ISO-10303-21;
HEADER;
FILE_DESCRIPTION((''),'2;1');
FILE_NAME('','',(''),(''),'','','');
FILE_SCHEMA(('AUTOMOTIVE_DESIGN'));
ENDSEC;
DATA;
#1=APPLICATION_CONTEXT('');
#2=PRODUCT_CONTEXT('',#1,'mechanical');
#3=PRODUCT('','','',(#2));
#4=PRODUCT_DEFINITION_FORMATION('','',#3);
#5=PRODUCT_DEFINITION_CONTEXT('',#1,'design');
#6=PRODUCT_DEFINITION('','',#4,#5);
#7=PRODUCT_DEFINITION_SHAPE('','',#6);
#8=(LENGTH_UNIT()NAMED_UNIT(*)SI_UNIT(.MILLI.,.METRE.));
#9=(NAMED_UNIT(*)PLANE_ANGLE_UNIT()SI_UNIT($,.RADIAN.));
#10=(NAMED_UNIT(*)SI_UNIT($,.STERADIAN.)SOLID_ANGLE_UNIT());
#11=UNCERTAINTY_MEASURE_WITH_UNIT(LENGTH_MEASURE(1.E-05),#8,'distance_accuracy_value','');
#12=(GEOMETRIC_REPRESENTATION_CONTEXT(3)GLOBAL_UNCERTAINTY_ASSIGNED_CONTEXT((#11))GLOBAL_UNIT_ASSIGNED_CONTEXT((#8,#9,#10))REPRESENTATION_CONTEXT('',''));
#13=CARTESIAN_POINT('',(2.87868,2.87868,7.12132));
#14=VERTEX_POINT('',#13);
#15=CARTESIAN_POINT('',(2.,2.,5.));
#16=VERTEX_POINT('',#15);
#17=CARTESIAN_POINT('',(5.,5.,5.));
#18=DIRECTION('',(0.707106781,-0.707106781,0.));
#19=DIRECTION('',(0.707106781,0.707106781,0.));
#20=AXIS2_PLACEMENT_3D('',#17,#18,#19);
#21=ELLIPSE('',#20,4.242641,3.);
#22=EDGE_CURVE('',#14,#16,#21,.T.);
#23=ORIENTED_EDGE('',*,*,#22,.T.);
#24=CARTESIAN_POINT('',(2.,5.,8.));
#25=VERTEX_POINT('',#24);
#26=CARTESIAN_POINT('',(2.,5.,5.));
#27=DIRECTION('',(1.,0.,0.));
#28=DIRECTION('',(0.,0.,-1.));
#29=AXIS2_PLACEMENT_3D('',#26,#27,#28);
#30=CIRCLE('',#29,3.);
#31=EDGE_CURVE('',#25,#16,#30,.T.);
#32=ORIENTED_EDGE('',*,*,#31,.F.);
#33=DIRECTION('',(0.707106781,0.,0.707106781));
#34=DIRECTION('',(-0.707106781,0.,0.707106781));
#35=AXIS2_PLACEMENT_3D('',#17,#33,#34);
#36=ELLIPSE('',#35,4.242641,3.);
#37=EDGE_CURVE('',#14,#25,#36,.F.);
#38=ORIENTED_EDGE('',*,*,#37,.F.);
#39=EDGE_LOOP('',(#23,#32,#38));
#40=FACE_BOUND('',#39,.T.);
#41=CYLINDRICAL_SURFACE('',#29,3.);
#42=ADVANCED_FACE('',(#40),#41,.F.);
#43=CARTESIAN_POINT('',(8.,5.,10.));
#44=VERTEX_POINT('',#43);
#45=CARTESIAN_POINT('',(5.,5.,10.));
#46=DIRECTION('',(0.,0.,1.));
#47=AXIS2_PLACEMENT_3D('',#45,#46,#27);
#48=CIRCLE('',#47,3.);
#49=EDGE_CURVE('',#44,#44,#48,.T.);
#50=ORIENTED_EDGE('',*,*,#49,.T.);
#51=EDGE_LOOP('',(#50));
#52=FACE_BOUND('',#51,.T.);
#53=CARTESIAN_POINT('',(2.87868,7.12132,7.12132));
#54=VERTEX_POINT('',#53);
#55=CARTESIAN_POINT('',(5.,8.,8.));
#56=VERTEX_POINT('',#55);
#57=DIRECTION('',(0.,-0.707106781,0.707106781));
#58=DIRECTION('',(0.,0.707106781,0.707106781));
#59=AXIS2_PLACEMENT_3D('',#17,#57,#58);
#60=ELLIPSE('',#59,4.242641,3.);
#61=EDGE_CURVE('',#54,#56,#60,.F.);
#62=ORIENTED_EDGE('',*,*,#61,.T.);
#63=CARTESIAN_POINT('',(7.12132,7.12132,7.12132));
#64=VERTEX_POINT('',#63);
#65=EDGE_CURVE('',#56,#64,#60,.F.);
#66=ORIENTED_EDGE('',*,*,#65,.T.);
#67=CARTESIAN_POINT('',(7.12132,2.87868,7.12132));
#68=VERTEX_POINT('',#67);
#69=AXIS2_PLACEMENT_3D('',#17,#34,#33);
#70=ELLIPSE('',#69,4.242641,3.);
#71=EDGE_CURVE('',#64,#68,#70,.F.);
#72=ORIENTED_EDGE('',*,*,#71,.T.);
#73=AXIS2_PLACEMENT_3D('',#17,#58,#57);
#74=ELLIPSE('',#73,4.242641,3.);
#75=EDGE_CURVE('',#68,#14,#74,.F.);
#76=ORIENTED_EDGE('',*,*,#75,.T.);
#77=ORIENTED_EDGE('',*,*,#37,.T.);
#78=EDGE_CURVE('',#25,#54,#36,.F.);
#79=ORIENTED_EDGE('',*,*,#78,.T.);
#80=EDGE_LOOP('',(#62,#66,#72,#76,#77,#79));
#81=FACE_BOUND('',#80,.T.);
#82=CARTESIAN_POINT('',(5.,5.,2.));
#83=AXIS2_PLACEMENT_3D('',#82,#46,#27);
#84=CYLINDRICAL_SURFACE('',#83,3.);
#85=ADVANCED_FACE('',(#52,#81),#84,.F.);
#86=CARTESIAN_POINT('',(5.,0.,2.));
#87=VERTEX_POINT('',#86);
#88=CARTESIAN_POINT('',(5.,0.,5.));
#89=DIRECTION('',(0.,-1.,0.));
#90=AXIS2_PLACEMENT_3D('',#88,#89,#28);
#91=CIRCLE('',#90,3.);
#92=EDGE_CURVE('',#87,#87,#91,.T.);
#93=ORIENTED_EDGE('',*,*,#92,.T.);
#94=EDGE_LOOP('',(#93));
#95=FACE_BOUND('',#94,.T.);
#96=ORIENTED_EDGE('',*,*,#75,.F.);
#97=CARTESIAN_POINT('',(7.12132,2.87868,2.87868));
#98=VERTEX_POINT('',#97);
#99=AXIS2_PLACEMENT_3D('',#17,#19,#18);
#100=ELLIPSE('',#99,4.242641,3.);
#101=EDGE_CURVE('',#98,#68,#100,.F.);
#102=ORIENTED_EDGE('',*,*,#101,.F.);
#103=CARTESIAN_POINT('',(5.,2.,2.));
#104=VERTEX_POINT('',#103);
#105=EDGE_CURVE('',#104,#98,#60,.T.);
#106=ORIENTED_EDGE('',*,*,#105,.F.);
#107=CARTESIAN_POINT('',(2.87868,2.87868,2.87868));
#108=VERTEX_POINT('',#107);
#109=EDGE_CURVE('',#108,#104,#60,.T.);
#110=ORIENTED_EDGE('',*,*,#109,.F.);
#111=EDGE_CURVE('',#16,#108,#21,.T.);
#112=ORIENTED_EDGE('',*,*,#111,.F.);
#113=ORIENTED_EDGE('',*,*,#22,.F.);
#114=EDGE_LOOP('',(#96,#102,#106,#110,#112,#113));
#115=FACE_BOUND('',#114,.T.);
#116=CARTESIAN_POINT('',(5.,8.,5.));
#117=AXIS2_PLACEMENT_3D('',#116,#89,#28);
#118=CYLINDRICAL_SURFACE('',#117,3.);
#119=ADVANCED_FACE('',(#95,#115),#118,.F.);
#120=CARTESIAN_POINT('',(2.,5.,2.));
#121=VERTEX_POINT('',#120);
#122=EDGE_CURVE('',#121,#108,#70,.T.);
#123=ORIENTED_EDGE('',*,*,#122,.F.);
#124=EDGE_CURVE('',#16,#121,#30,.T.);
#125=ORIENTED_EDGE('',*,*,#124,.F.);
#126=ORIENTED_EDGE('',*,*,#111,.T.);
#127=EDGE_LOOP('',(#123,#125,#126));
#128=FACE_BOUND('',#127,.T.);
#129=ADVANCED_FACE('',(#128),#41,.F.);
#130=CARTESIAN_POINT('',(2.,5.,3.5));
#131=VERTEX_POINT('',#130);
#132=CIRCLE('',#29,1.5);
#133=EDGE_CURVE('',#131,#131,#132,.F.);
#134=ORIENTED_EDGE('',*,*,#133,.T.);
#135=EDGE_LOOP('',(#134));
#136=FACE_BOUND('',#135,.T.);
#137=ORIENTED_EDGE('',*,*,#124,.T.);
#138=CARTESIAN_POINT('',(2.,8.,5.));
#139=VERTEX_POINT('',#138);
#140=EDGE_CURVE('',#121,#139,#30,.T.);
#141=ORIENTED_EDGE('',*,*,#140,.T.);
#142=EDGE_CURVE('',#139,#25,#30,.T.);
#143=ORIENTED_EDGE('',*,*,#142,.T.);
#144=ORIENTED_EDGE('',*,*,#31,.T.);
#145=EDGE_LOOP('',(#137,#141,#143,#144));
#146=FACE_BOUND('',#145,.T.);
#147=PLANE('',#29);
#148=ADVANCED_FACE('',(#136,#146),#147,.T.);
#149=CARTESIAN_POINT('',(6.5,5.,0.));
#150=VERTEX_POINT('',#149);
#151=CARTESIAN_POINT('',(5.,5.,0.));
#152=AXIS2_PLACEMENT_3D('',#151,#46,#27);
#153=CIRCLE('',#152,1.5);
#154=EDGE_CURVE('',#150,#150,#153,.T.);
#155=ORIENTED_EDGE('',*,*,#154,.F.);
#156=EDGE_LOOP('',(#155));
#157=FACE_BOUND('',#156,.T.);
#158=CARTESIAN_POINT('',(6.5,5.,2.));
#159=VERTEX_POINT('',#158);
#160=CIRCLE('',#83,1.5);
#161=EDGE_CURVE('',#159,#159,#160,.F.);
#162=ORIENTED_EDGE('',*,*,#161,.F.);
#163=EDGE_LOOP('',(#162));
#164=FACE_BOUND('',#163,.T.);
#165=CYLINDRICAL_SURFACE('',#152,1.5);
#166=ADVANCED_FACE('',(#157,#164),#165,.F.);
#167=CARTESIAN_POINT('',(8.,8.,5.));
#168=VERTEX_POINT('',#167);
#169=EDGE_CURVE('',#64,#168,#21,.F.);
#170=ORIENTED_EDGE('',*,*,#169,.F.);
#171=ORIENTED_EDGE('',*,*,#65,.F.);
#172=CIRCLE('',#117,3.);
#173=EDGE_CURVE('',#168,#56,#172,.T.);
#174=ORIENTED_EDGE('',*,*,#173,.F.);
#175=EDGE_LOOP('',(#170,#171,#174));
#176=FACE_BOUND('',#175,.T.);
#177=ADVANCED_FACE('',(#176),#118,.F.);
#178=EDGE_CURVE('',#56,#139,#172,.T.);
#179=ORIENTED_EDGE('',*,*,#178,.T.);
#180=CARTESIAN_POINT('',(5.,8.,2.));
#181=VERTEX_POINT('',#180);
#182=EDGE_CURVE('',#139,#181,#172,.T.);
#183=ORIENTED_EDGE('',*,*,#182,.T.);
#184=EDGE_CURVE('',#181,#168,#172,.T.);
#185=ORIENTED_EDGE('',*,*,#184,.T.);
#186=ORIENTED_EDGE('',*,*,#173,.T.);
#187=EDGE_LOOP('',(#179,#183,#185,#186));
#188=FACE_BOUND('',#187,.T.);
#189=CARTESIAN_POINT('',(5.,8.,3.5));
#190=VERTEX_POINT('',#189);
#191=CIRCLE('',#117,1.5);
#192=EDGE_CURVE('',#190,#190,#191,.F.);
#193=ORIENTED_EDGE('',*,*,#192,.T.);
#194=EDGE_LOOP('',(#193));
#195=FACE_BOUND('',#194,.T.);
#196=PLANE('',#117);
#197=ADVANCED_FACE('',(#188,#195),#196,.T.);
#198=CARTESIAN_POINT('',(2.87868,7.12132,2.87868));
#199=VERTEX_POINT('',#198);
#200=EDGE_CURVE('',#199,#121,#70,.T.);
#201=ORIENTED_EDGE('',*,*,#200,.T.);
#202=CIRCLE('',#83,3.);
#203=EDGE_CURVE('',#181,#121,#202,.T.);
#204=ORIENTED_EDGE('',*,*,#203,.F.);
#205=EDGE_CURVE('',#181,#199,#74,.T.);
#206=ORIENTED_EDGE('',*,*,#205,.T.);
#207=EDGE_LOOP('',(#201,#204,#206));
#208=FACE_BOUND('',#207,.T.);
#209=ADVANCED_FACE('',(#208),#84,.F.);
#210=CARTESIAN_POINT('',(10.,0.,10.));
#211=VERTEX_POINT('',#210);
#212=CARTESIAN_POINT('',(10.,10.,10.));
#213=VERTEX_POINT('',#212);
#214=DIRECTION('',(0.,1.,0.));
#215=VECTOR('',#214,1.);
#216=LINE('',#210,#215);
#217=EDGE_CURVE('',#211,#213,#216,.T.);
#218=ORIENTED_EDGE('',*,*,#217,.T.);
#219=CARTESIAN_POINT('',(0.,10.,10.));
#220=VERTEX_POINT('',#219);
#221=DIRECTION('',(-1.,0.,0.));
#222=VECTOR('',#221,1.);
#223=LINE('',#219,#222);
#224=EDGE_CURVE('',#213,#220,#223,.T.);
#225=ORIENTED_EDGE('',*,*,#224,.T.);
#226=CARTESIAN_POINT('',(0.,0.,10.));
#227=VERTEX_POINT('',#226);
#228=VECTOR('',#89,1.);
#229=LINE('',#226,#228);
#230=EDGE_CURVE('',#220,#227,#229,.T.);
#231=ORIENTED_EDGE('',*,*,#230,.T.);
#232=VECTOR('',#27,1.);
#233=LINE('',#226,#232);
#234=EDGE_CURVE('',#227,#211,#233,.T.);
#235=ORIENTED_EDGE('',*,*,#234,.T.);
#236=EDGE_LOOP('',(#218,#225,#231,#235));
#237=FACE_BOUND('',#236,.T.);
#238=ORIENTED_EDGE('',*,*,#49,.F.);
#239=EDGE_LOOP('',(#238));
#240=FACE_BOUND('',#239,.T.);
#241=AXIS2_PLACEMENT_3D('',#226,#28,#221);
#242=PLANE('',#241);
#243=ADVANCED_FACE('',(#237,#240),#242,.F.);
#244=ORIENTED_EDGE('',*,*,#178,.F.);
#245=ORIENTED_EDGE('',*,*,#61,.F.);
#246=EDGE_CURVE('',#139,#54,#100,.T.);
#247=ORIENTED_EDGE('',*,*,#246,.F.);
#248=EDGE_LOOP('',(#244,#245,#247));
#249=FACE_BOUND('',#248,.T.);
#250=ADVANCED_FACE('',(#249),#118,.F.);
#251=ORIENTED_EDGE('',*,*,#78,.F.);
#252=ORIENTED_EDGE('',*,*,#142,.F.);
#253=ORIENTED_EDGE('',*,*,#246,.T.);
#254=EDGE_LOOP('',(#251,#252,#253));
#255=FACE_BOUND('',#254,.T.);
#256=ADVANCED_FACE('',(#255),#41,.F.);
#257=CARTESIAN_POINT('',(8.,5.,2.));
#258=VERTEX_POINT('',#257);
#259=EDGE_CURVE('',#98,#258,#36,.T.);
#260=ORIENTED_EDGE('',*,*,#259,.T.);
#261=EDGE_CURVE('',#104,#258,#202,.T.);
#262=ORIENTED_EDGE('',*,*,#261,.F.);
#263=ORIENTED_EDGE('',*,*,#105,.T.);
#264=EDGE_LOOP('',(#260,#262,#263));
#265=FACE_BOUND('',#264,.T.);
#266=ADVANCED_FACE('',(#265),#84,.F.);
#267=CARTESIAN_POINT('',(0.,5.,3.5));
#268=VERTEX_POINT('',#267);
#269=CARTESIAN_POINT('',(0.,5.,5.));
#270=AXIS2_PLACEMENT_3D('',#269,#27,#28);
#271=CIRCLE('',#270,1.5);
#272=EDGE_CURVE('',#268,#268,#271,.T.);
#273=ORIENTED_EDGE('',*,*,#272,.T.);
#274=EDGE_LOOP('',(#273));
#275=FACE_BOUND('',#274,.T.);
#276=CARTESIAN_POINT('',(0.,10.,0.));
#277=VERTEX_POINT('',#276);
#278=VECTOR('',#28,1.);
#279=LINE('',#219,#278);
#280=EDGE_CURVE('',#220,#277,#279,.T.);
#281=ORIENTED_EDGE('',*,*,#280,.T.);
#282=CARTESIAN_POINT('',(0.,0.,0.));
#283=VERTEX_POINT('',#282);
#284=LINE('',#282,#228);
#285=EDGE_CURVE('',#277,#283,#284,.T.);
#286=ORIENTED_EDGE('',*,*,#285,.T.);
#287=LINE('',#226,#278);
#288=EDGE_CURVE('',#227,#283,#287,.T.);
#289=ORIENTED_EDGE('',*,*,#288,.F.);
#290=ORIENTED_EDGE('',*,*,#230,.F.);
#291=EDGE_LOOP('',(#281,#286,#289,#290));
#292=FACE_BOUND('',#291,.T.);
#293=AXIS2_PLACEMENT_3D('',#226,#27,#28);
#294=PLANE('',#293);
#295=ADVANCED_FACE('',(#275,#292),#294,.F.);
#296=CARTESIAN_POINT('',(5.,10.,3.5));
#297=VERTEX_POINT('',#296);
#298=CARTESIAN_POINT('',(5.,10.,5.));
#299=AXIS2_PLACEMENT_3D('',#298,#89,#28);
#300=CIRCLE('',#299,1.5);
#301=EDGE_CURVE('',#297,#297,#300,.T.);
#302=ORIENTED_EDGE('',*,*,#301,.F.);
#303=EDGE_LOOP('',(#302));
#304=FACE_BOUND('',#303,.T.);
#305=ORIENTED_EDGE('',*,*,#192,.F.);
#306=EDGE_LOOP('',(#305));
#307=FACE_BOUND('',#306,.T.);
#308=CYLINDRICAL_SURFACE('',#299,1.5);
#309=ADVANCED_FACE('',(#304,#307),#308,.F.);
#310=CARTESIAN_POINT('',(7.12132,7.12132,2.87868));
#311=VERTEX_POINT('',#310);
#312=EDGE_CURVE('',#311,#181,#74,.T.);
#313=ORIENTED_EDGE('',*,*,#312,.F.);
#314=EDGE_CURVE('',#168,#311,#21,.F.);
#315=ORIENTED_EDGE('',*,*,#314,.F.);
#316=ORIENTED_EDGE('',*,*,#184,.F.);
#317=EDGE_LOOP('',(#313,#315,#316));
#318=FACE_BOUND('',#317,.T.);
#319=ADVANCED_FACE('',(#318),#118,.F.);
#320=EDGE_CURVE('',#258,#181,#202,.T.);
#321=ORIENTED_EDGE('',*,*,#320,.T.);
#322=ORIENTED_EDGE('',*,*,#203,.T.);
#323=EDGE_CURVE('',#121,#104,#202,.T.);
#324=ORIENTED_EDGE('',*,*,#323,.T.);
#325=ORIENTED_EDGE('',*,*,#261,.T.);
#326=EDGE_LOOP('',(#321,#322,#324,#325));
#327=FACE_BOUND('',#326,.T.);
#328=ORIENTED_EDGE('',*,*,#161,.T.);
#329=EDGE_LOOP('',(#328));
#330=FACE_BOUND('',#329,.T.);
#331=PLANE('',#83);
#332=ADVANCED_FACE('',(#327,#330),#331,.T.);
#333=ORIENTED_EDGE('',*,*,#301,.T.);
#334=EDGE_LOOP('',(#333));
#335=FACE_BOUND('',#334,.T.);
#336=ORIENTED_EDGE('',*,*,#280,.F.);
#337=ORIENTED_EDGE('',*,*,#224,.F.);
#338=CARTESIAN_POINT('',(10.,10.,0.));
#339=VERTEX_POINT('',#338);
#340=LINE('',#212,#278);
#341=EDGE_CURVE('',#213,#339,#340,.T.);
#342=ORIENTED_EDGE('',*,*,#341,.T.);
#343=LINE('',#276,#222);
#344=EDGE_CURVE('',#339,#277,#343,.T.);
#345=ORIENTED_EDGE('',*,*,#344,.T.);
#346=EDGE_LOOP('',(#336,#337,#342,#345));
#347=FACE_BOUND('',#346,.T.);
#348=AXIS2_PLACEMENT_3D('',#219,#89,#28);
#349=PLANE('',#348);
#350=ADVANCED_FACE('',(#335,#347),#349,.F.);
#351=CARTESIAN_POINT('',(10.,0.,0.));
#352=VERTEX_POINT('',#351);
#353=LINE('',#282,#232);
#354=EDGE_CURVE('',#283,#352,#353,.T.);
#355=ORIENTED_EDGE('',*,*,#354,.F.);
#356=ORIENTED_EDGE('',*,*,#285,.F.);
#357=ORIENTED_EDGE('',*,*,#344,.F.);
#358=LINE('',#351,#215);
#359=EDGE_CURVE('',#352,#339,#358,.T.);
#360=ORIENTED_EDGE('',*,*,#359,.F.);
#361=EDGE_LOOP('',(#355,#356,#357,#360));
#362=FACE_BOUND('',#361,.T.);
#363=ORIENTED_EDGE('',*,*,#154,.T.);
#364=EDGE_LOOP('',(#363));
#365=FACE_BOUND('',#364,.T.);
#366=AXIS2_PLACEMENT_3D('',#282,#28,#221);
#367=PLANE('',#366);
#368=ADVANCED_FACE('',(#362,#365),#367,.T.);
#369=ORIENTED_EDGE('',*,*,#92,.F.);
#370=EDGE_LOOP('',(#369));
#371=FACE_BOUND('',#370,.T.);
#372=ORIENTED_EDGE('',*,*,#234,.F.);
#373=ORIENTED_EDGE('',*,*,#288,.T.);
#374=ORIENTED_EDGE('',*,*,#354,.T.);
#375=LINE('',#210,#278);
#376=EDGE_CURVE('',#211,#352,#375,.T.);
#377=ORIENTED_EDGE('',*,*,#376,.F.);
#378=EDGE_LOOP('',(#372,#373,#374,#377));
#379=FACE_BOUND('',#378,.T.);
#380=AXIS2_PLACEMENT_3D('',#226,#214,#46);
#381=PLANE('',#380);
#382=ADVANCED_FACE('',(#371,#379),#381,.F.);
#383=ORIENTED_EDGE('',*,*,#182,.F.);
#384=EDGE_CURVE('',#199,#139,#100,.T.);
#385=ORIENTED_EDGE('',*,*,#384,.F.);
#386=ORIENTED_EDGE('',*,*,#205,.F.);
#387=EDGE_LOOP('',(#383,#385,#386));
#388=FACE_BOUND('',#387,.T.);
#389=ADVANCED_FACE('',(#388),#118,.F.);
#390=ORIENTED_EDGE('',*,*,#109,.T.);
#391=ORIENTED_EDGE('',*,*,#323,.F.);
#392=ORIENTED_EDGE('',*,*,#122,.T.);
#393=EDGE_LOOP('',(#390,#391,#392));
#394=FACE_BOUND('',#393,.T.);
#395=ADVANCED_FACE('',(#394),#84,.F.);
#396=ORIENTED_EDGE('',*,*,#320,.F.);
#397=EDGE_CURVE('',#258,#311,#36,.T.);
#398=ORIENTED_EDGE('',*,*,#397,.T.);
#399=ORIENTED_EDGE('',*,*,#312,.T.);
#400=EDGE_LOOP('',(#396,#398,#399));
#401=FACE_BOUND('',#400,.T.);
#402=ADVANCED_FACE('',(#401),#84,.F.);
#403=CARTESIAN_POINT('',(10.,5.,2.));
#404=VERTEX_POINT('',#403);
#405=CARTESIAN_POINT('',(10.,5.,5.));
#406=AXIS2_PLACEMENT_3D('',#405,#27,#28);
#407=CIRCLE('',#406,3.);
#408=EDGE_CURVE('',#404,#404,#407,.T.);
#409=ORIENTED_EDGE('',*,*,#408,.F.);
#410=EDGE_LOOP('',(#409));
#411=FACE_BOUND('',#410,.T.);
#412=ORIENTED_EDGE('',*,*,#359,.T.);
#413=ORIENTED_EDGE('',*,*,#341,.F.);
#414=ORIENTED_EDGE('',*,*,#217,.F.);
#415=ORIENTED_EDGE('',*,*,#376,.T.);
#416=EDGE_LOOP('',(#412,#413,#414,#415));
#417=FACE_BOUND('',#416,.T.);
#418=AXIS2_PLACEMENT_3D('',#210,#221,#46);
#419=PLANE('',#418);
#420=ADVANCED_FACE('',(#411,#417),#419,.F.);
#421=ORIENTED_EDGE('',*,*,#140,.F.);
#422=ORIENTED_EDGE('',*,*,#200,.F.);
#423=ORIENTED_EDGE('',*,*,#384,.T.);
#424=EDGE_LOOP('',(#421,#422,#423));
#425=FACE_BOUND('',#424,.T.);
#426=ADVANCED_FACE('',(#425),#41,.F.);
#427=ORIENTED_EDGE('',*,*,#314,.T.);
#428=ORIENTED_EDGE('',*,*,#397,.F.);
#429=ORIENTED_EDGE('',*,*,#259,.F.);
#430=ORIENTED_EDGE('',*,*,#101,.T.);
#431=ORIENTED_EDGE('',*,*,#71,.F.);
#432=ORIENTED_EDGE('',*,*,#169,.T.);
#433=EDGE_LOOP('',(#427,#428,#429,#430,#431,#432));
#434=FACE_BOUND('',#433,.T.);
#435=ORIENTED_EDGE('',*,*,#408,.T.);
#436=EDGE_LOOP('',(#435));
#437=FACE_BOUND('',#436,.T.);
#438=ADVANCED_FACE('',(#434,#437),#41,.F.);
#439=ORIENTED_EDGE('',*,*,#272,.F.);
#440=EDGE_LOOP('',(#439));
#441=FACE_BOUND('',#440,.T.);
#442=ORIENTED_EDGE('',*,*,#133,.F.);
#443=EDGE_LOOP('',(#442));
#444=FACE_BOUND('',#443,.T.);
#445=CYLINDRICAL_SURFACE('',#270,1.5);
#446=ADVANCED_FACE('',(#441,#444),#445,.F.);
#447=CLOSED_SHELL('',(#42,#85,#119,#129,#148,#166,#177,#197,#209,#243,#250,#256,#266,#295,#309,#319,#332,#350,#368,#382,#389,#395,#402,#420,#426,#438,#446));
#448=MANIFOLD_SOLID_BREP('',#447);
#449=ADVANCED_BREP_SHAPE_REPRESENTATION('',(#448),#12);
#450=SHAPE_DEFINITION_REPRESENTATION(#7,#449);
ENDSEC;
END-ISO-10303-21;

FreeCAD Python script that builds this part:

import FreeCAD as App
import Part
import Sketcher
from FreeCAD import Vector
Q = App.Units.Quantity

doc = App.newDocument("Part")
body = doc.addObject("PartDesign::Body", "Body")

# Sketch on XY plane
sketch1 = body.newObject("Sketcher::SketchObject", "Sketch")
sketch1.AttachmentSupport = (doc.getObject("XY_Plane"), [""])
sketch1.MapMode = "FlatFace"
sketch1.addGeometry(Part.LineSegment(Vector(0, 10, 0), Vector(0, 0, 0)), False)
sketch1.addGeometry(Part.LineSegment(Vector(0, 0, 0), Vector(10, 0, 0)), False)
sketch1.addGeometry(Part.LineSegment(Vector(10, 0, 0), Vector(10, 10, 0)), False)
sketch1.addGeometry(Part.LineSegment(Vector(10, 10, 0), Vector(0, 10, 0)), False)
sketch1.addConstraint(Sketcher.Constraint("Coincident", 0, 2, 1, 1))
sketch1.addConstraint(Sketcher.Constraint("Coincident", 1, 2, 2, 1))
sketch1.addConstraint(Sketcher.Constraint("Coincident", 2, 2, 3, 1))
sketch1.addConstraint(Sketcher.Constraint("Coincident", 3, 2, 0, 1))
sketch1.addConstraint(Sketcher.Constraint("Vertical", 0))
sketch1.addConstraint(Sketcher.Constraint("Horizontal", 1))
sketch1.addConstraint(Sketcher.Constraint("Vertical", 2))
sketch1.addConstraint(Sketcher.Constraint("Horizontal", 3))
sketch1.addConstraint(Sketcher.Constraint("Coincident", 0, 2, -1, 1))
sketch1.addConstraint(Sketcher.Constraint("Equal", 3, 0))
sketch1.addConstraint(Sketcher.Constraint("DistanceX", 1, 1, 1, 2, Q("10 mm")))
pad1 = body.newObject("PartDesign::Pad", "Pad")
pad1.Profile = sketch1
pad1.Length = 10

# Sketch on XY plane
sketch2 = body.newObject("Sketcher::SketchObject", "Sketch001")
sketch2.AttachmentSupport = (doc.getObject("XY_Plane"), [""])
sketch2.MapMode = "FlatFace"
sketch2.AttachmentOffset = App.Placement(Vector(0, 0, 10), App.Rotation())
sketch2.addGeometry(Part.Circle(Vector(5, 5, 0), Vector(0, 0, 1), 1.5), False)
sketch2.addConstraint(Sketcher.Constraint("Diameter", 0, Q("3 mm")))
sketch2.addConstraint(Sketcher.Constraint("DistanceX", -1, 1, 0, 3, Q("5 mm")))
sketch2.addConstraint(Sketcher.Constraint("DistanceY", -1, 1, 0, 3, Q("5 mm")))
pocket1 = body.newObject("PartDesign::Pocket", "Pocket")
pocket1.Profile = sketch2
pocket1.Type = "ThroughAll"

# Sketch on XY plane
sketch3 = body.newObject("Sketcher::SketchObject", "Sketch002")
sketch3.AttachmentSupport = (doc.getObject("XY_Plane"), [""])
sketch3.MapMode = "FlatFace"
sketch3.AttachmentOffset = App.Placement(Vector(0, 0, 10), App.Rotation())
sketch3.addGeometry(Part.Circle(Vector(5, 5, 0), Vector(0, 0, 1), 3), False)
sketch3.addConstraint(Sketcher.Constraint("Diameter", 0, Q("6 mm")))
sketch3.addConstraint(Sketcher.Constraint("DistanceX", -1, 1, 0, 3, Q("5 mm")))
sketch3.addConstraint(Sketcher.Constraint("DistanceY", -1, 1, 0, 3, Q("5 mm")))
pocket2 = body.newObject("PartDesign::Pocket", "Pocket001")
pocket2.Profile = sketch3
pocket2.Length = 8

# Sketch on YZ plane
sketch4 = body.newObject("Sketcher::SketchObject", "Sketch003")
sketch4.AttachmentSupport = (doc.getObject("YZ_Plane"), [""])
sketch4.MapMode = "FlatFace"
sketch4.AttachmentOffset = App.Placement(Vector(0, 0, 10), App.Rotation())
sketch4.addGeometry(Part.Circle(Vector(5, 5, 0), Vector(0, 0, 1), 1.5), False)
sketch4.addConstraint(Sketcher.Constraint("Diameter", 0, Q("3 mm")))
sketch4.addConstraint(Sketcher.Constraint("DistanceX", -1, 1, 0, 3, Q("5 mm")))
sketch4.addConstraint(Sketcher.Constraint("DistanceY", -1, 1, 0, 3, Q("5 mm")))
pocket3 = body.newObject("PartDesign::Pocket", "Pocket002")
pocket3.Profile = sketch4
pocket3.Type = "ThroughAll"

# Sketch on YZ plane
sketch5 = body.newObject("Sketcher::SketchObject", "Sketch004")
sketch5.AttachmentSupport = (doc.getObject("YZ_Plane"), [""])
sketch5.MapMode = "FlatFace"
sketch5.AttachmentOffset = App.Placement(Vector(0, 0, 10), App.Rotation())
sketch5.addGeometry(Part.Circle(Vector(5, 5, 0), Vector(0, 0, 1), 3), False)
sketch5.addConstraint(Sketcher.Constraint("Diameter", 0, Q("6 mm")))
sketch5.addConstraint(Sketcher.Constraint("DistanceX", -1, 1, 0, 3, Q("5 mm")))
sketch5.addConstraint(Sketcher.Constraint("DistanceY", -1, 1, 0, 3, Q("5 mm")))
pocket4 = body.newObject("PartDesign::Pocket", "Pocket003")
pocket4.Profile = sketch5
pocket4.Length = 8

# Sketch on XZ plane
sketch6 = body.newObject("Sketcher::SketchObject", "Sketch005")
sketch6.AttachmentSupport = (doc.getObject("XZ_Plane"), [""])
sketch6.MapMode = "FlatFace"
sketch6.addGeometry(Part.Circle(Vector(5, 5, 0), Vector(0, 0, 1), 1.5), False)
sketch6.addConstraint(Sketcher.Constraint("Diameter", 0, Q("3 mm")))
sketch6.addConstraint(Sketcher.Constraint("DistanceX", -1, 1, 0, 3, Q("5 mm")))
sketch6.addConstraint(Sketcher.Constraint("DistanceY", -1, 1, 0, 3, Q("5 mm")))
pocket5 = body.newObject("PartDesign::Pocket", "Pocket004")
pocket5.Profile = sketch6
pocket5.Type = "ThroughAll"

# Sketch on XZ plane
sketch7 = body.newObject("Sketcher::SketchObject", "Sketch006")
sketch7.AttachmentSupport = (doc.getObject("XZ_Plane"), [""])
sketch7.MapMode = "FlatFace"
sketch7.addGeometry(Part.Circle(Vector(5, 5, 0), Vector(0, 0, 1), 3), False)
sketch7.addConstraint(Sketcher.Constraint("Diameter", 0, Q("6 mm")))
sketch7.addConstraint(Sketcher.Constraint("DistanceX", -1, 1, 0, 3, Q("5 mm")))
sketch7.addConstraint(Sketcher.Constraint("DistanceY", -1, 1, 0, 3, Q("5 mm")))
pocket6 = body.newObject("PartDesign::Pocket", "Pocket005")
pocket6.Profile = sketch7
pocket6.Length = 8

doc.recompute()
